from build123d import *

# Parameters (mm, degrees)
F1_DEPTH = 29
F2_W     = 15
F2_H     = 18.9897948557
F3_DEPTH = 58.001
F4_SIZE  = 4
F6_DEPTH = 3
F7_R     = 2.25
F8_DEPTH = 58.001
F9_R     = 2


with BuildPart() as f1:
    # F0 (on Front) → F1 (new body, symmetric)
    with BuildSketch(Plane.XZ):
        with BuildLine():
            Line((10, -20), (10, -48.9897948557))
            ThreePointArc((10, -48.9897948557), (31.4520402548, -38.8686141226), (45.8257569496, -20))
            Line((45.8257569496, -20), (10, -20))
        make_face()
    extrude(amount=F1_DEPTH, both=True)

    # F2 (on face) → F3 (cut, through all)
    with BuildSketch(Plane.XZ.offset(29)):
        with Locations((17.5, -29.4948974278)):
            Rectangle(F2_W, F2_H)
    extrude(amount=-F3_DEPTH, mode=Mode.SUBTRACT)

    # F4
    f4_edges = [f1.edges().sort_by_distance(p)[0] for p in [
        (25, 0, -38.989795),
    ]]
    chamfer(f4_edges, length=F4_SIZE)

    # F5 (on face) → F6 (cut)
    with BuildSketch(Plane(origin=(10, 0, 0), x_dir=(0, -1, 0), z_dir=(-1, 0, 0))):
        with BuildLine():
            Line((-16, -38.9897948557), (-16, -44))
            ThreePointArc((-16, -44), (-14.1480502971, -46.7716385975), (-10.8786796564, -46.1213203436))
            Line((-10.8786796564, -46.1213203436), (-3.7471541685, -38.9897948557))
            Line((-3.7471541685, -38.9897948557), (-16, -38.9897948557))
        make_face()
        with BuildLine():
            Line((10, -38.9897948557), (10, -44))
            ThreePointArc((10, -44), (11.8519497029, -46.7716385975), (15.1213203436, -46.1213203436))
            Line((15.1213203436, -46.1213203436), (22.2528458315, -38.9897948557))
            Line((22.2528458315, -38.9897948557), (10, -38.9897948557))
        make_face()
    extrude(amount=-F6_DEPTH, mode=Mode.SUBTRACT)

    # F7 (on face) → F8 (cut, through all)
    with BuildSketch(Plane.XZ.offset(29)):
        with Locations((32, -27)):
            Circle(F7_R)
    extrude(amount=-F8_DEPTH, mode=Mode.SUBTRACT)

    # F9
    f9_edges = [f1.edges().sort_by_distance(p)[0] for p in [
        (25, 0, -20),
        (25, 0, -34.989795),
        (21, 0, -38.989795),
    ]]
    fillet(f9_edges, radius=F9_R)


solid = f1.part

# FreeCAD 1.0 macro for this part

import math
import FreeCAD as App
import Part
import Sketcher
Q = App.Units.Quantity


def edges_at(feature, points):
    """Names of the edges that pass closest to the given points."""
    edges = feature.Shape.Edges
    near = lambda p: min(range(len(edges)), key=lambda i: edges[i].distToShape(Part.Vertex(*p))[0])
    return sorted({f"Edge{near(p) + 1}" for p in points})


def add_polygon(sketch, points):
    """Adds a closed chain of lines whose ends are joined by coincident constraints."""
    first, n = sketch.GeometryCount, len(points)
    for a, b in zip(points, points[1:] + points[:1]):
        sketch.addGeometry(Part.LineSegment(App.Vector(*a, 0), App.Vector(*b, 0)), False)
    for i in range(n):
        sketch.addConstraint(Sketcher.Constraint("Coincident", first + i, 2, first + (i + 1) % n, 1))

doc = App.newDocument("Part")
body = doc.addObject("PartDesign::Body", "Body")

sketch1 = body.newObject("Sketcher::SketchObject", "Sketch")
sketch1.AttachmentSupport = (doc.getObject("XZ_Plane"), [""])
sketch1.MapMode = "FlatFace"
sketch1.addGeometry(Part.LineSegment(App.Vector(10, -20, 0), App.Vector(10, -49, 0)), False)
sketch1.addGeometry(Part.ArcOfCircle(Part.Circle(App.Vector(0, 0, 0), App.Vector(0, 0, 1), 50), math.radians(-78), math.radians(-24)), False)
sketch1.addGeometry(Part.LineSegment(App.Vector(46, -20, 0), App.Vector(10, -20, 0)), False)
sketch1.addConstraint(Sketcher.Constraint("Coincident", 0, 2, 1, 1))
sketch1.addConstraint(Sketcher.Constraint("Coincident", 1, 2, 2, 1))
sketch1.addConstraint(Sketcher.Constraint("Coincident", 2, 2, 0, 1))
sketch1.addConstraint(Sketcher.Constraint("Vertical", 0))
sketch1.addConstraint(Sketcher.Constraint("Horizontal", 2))
sketch1.addConstraint(Sketcher.Constraint("Coincident", 1, 3, -1, 1))
sketch1.addConstraint(Sketcher.Constraint("Radius", 1, Q("50 mm")))
sketch1.addConstraint(Sketcher.Constraint("DistanceX", -1, 1, 0, 2, Q("10 mm")))
sketch1.addConstraint(Sketcher.Constraint("DistanceY", 1, 2, -1, 1, Q("20 mm")))
pad1 = body.newObject("PartDesign::Pad", "Pad")
pad1.Profile = sketch1
pad1.Length = 58
pad1.Midplane = True

sketch2 = body.newObject("Sketcher::SketchObject", "Sketch001")
sketch2.AttachmentSupport = (doc.getObject("XZ_Plane"), [""])
sketch2.MapMode = "FlatFace"
sketch2.AttachmentOffset = App.Placement(App.Vector(0, 0, 29), App.Rotation())
add_polygon(sketch2, [(10, -20), (10, -39), (25, -39), (25, -20)])
sketch2.addConstraint(Sketcher.Constraint("Vertical", 0))
sketch2.addConstraint(Sketcher.Constraint("Horizontal", 1))
sketch2.addConstraint(Sketcher.Constraint("Vertical", 2))
sketch2.addConstraint(Sketcher.Constraint("Horizontal", 3))
sketch2.addConstraint(Sketcher.Constraint("DistanceX", 1, 1, 1, 2, Q("15 mm")))
sketch2.addConstraint(Sketcher.Constraint("DistanceX", -1, 1, 0, 2, Q("10 mm")))
sketch2.addConstraint(Sketcher.Constraint("DistanceY", 2, 2, -1, 1, Q("20 mm")))
sketch2.addConstraint(Sketcher.Constraint("DistanceY", 0, 2, 0, 1, Q("18.989795 mm")))
pocket1 = body.newObject("PartDesign::Pocket", "Pocket")
pocket1.Profile = sketch2
pocket1.Type = "ThroughAll"
doc.recompute()

chamfer = body.newObject("PartDesign::Chamfer", "Chamfer")
chamfer.Base = (pocket1, edges_at(pocket1, [(25, 0, -38.99)]))
chamfer.Size = 4

sketch3 = body.newObject("Sketcher::SketchObject", "Sketch002")
sketch3.AttachmentSupport = (doc.getObject("YZ_Plane"), [""])
sketch3.MapMode = "FlatFace"
sketch3.AttachmentOffset = App.Placement(App.Vector(0, 0, 10), App.Rotation())
sketch3.addGeometry(Part.LineSegment(App.Vector(16, -39, 0), App.Vector(16, -44, 0)), False)
sketch3.addGeometry(Part.ArcOfCircle(Part.Circle(App.Vector(13, -44, 0), App.Vector(0, 0, 1), 3), math.radians(-135), math.radians(0)), False)
sketch3.addGeometry(Part.LineSegment(App.Vector(10.9, -46.1, 0), App.Vector(3.7, -39, 0)), False)
sketch3.addGeometry(Part.LineSegment(App.Vector(3.7, -39, 0), App.Vector(16, -39, 0)), False)
sketch3.addGeometry(Part.LineSegment(App.Vector(-10, -39, 0), App.Vector(-10, -44, 0)), False)
sketch3.addGeometry(Part.ArcOfCircle(Part.Circle(App.Vector(-13, -44, 0), App.Vector(0, 0, 1), 3), math.radians(-135), math.radians(0)), False)
sketch3.addGeometry(Part.LineSegment(App.Vector(-15.1, -46.1, 0), App.Vector(-22.3, -39, 0)), False)
sketch3.addGeometry(Part.LineSegment(App.Vector(-22.3, -39, 0), App.Vector(-10, -39, 0)), False)
sketch3.addConstraint(Sketcher.Constraint("Tangent", 0, 2, 1, 2))
sketch3.addConstraint(Sketcher.Constraint("Tangent", 1, 1, 2, 1))
sketch3.addConstraint(Sketcher.Constraint("Coincident", 2, 2, 3, 1))
sketch3.addConstraint(Sketcher.Constraint("Coincident", 3, 2, 0, 1))
sketch3.addConstraint(Sketcher.Constraint("Tangent", 4, 2, 5, 2))
sketch3.addConstraint(Sketcher.Constraint("Tangent", 5, 1, 6, 1))
sketch3.addConstraint(Sketcher.Constraint("Coincident", 6, 2, 7, 1))
sketch3.addConstraint(Sketcher.Constraint("Coincident", 7, 2, 4, 1))
sketch3.addConstraint(Sketcher.Constraint("Vertical", 0))
sketch3.addConstraint(Sketcher.Constraint("Horizontal", 3))
sketch3.addConstraint(Sketcher.Constraint("Vertical", 4))
sketch3.addConstraint(Sketcher.Constraint("Horizontal", 7))
sketch3.addConstraint(Sketcher.Constraint("Equal", 1, 5))
sketch3.addConstraint(Sketcher.Constraint("Symmetric", 1, 3, 5, 3, -2))
sketch3.addConstraint(Sketcher.Constraint("Parallel", 2, 6))
sketch3.addConstraint(Sketcher.Constraint("Horizontal", 3, 2, 6, 2))
sketch3.addConstraint(Sketcher.Constraint("Radius", 1, Q("3 mm")))
sketch3.addConstraint(Sketcher.Constraint("Angle", 2, Q("135 deg")))
sketch3.addConstraint(Sketcher.Constraint("DistanceX", -1, 1, 1, 3, Q("13 mm")))
sketch3.addConstraint(Sketcher.Constraint("DistanceY", 1, 3, -1, 1, Q("44 mm")))
sketch3.addConstraint(Sketcher.Constraint("Distance", 2, Q("10.0855 mm")))
pocket2 = body.newObject("PartDesign::Pocket", "Pocket001")
pocket2.Profile = sketch3
pocket2.Length = 3
pocket2.Reversed = True

sketch4 = body.newObject("Sketcher::SketchObject", "Sketch003")
sketch4.AttachmentSupport = (doc.getObject("XZ_Plane"), [""])
sketch4.MapMode = "FlatFace"
sketch4.AttachmentOffset = App.Placement(App.Vector(0, 0, 29), App.Rotation())
sketch4.addGeometry(Part.Circle(App.Vector(32, -27, 0), App.Vector(0, 0, 1), 2.2), False)
sketch4.addConstraint(Sketcher.Constraint("Diameter", 0, Q("4.5 mm")))
sketch4.addConstraint(Sketcher.Constraint("DistanceX", -1, 1, 0, 3, Q("32 mm")))
sketch4.addConstraint(Sketcher.Constraint("DistanceY", 0, 3, -1, 1, Q("27 mm")))
pocket3 = body.newObject("PartDesign::Pocket", "Pocket002")
pocket3.Profile = sketch4
pocket3.Type = "ThroughAll"
doc.recompute()

fillet = body.newObject("PartDesign::Fillet", "Fillet")
fillet.Base = (pocket3, edges_at(pocket3, [(25, 0, -20), (25, 0, -34.99), (21, 0, -38.99)]))
fillet.Radius = 2

doc.recompute()
